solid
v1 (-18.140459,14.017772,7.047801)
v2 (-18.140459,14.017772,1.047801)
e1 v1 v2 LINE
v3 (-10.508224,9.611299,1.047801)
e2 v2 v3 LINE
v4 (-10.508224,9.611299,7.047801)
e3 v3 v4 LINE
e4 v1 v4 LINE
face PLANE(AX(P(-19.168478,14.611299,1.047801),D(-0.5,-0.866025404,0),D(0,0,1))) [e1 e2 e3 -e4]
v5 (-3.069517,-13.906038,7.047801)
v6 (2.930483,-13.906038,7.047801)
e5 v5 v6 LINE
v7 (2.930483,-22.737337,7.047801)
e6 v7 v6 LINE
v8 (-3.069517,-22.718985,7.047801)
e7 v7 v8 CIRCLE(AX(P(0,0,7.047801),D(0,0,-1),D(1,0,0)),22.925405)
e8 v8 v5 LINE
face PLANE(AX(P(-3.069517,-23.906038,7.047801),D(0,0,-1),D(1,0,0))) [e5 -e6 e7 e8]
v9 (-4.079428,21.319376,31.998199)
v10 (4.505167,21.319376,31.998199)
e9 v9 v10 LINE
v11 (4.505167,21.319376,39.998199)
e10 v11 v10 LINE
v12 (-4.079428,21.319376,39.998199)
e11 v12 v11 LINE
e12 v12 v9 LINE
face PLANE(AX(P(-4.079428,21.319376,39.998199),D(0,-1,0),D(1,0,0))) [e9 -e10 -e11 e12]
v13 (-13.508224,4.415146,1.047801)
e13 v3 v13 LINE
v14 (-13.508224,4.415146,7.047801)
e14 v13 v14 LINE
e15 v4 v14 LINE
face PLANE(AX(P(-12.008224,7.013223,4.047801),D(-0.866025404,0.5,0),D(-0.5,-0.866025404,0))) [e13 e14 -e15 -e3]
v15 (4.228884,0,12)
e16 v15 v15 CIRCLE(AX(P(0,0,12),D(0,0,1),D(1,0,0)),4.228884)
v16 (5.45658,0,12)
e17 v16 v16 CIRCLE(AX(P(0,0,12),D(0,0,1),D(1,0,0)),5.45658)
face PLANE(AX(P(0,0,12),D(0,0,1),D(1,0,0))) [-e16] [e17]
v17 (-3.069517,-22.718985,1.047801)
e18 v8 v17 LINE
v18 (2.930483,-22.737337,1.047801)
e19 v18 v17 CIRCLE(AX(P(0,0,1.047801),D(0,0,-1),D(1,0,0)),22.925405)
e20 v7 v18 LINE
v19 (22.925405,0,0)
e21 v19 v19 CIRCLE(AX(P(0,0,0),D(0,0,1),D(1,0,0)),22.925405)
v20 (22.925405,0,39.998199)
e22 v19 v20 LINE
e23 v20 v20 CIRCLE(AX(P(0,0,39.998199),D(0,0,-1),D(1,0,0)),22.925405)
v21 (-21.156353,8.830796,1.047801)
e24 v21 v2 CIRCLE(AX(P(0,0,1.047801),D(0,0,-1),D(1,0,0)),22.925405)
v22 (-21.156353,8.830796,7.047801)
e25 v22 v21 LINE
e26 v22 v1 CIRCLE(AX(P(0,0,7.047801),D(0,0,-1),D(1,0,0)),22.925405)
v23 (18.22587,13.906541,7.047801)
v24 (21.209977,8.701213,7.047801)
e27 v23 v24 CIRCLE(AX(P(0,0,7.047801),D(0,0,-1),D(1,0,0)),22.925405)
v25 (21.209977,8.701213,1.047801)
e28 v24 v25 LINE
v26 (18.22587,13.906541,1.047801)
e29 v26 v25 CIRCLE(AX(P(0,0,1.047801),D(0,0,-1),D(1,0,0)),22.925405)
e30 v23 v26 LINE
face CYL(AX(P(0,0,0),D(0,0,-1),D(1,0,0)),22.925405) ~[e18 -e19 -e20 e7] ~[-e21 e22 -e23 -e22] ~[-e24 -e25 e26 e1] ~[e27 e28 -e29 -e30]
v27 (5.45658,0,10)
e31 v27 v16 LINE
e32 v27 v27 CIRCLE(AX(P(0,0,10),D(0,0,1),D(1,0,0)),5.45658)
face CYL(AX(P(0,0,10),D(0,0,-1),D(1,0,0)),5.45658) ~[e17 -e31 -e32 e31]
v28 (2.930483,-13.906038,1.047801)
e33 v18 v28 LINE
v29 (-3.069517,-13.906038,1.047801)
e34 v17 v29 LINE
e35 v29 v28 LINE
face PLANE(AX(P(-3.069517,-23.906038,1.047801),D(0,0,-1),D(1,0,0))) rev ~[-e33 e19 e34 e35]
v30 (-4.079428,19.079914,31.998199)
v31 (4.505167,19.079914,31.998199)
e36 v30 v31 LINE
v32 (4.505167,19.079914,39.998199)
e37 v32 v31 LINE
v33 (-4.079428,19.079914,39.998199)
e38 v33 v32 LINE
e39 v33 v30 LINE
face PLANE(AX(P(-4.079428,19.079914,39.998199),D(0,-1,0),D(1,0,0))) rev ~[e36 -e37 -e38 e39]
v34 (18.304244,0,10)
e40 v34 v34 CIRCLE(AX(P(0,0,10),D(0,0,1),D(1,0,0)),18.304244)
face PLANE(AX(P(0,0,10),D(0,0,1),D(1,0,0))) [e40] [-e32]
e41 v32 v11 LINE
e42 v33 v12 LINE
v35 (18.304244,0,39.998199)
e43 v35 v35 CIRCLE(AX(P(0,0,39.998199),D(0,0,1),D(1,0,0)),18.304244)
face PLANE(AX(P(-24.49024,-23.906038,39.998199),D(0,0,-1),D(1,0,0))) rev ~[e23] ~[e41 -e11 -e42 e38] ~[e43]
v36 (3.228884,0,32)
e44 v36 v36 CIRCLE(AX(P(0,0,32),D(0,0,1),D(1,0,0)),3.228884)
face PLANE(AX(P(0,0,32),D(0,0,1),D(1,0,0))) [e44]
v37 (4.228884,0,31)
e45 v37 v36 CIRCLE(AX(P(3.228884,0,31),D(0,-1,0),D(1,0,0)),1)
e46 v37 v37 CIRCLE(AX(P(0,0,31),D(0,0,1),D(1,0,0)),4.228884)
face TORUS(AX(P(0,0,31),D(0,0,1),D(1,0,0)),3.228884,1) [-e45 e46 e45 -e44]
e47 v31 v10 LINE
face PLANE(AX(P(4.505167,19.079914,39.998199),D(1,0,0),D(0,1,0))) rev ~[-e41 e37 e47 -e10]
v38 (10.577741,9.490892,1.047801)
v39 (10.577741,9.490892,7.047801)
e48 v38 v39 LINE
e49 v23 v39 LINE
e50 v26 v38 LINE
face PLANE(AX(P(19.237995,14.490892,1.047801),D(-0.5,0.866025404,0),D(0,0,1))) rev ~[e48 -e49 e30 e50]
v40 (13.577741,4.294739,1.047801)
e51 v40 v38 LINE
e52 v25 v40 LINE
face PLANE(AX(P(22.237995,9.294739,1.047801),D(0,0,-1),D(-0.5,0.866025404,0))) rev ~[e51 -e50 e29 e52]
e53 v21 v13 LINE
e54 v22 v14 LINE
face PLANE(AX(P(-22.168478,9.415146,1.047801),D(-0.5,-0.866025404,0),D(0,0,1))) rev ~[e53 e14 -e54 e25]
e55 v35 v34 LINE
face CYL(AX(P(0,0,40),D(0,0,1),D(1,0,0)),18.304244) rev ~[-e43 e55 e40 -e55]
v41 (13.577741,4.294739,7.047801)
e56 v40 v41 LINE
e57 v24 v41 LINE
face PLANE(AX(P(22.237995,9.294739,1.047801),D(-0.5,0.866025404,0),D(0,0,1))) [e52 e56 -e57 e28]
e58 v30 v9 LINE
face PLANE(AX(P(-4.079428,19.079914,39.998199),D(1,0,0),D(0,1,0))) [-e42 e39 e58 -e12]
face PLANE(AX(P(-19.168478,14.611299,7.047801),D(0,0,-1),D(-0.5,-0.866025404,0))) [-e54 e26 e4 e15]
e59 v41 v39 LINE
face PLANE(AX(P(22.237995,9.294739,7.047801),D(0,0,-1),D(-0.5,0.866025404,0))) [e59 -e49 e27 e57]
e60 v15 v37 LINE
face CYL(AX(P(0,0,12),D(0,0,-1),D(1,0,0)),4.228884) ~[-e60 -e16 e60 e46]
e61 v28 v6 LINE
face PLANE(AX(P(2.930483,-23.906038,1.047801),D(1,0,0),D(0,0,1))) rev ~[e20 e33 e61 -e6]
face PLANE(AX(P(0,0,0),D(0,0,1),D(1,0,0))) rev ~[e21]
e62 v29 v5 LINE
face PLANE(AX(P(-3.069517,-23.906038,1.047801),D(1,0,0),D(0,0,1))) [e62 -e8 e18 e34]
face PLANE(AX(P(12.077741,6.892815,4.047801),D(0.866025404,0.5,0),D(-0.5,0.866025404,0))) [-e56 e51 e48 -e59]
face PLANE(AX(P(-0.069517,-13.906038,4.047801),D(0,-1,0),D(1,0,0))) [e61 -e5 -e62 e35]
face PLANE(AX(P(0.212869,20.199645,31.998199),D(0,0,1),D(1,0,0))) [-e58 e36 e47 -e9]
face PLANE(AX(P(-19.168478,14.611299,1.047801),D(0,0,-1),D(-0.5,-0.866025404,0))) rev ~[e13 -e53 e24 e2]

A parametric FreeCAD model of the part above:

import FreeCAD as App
import Part
import Sketcher
Q = App.Units.Quantity


def edges_at(feature, points):
    """Names of the edges that pass closest to the given points."""
    edges = feature.Shape.Edges
    near = lambda p: min(range(len(edges)), key=lambda i: edges[i].distToShape(Part.Vertex(*p))[0])
    return sorted({f"Edge{near(p) + 1}" for p in points})


def add_polygon(sketch, points):
    """Adds a closed chain of lines whose ends are joined by coincident constraints."""
    first, n = sketch.GeometryCount, len(points)
    for a, b in zip(points, points[1:] + points[:1]):
        sketch.addGeometry(Part.LineSegment(App.Vector(*a, 0), App.Vector(*b, 0)), False)
    for i in range(n):
        sketch.addConstraint(Sketcher.Constraint("Coincident", first + i, 2, first + (i + 1) % n, 1))

doc = App.newDocument("Part")
body = doc.addObject("PartDesign::Body", "Body")

sketch1 = doc.addObject("Sketcher::SketchObject", "Sketch")
body.addObject(sketch1)
sketch1.AttachmentSupport = (doc.XY_Plane, [""])
sketch1.MapMode = "FlatFace"
sketch1.addGeometry(Part.Circle(App.Vector(0, 0, 0), App.Vector(0, 0, 1), 23), False)
sketch1.addConstraint([
    Sketcher.Constraint("Coincident", 0, 3, -1, 1),
    Sketcher.Constraint("Diameter", 0, Q("45.850811 mm")),
])
pad1 = doc.addObject("PartDesign::Pad", "Pad")
body.addObject(pad1)
pad1.Profile = sketch1
pad1.Length = 40

sketch2 = doc.addObject("Sketcher::SketchObject", "Sketch001")
body.addObject(sketch2)
sketch2.AttachmentSupport = (doc.XY_Plane, [""])
sketch2.MapMode = "FlatFace"
sketch2.AttachmentOffset = App.Placement(App.Vector(0, 0, 40), App.Rotation())
sketch2.addGeometry(Part.Circle(App.Vector(0, 0, 0), App.Vector(0, 0, 1), 18), False)
sketch2.addConstraint([
    Sketcher.Constraint("Coincident", 0, 3, -1, 1),
    Sketcher.Constraint("Diameter", 0, Q("36.608488 mm")),
])
pocket1 = doc.addObject("PartDesign::Pocket", "Pocket")
body.addObject(pocket1)
pocket1.Profile = sketch2
pocket1.Length = 30

sketch3 = doc.addObject("Sketcher::SketchObject", "Sketch002")
body.addObject(sketch3)
sketch3.AttachmentSupport = (doc.XY_Plane, [""])
sketch3.MapMode = "FlatFace"
sketch3.AttachmentOffset = App.Placement(App.Vector(0, 0, 10), App.Rotation())
sketch3.addGeometry(Part.Circle(App.Vector(0, 0, 0), App.Vector(0, 0, 1), 5), False)
sketch3.addConstraint([
    Sketcher.Constraint("Coincident", 0, 3, -1, 1),
    Sketcher.Constraint("Diameter", 0, Q("10.91316 mm")),
])
pad2 = doc.addObject("PartDesign::Pad", "Pad001")
body.addObject(pad2)
pad2.Profile = sketch3
pad2.Length = 2

sketch4 = doc.addObject("Sketcher::SketchObject", "Sketch003")
body.addObject(sketch4)
sketch4.AttachmentSupport = (doc.XY_Plane, [""])
sketch4.MapMode = "FlatFace"
sketch4.AttachmentOffset = App.Placement(App.Vector(0, 0, 12), App.Rotation())
sketch4.addGeometry(Part.Circle(App.Vector(0, 0, 0), App.Vector(0, 0, 1), 4.2), False)
sketch4.addConstraint([
    Sketcher.Constraint("Coincident", 0, 3, -1, 1),
    Sketcher.Constraint("Diameter", 0, Q("8.457768 mm")),
])
pad3 = doc.addObject("PartDesign::Pad", "Pad002")
body.addObject(pad3)
pad3.Profile = sketch4
pad3.Length = 20
doc.recompute()

fillet = doc.addObject("PartDesign::Fillet", "Fillet")
body.addObject(fillet)
fillet.Base = (pad3, edges_at(pad3, [(-4.229, 0, 32)]))
fillet.Radius = 1

sketch5 = doc.addObject("Sketcher::SketchObject", "Sketch004")
body.addObject(sketch5)
sketch5.AttachmentSupport = (doc.XY_Plane, [""])
sketch5.MapMode = "FlatFace"
sketch5.AttachmentOffset = App.Placement(App.Vector(0, 0, 40), App.Rotation())
add_polygon(sketch5, [(-23, 24), (-23, -24), (24, -24), (24, 24)])
sketch5.addConstraint([
    Sketcher.Constraint("Vertical", 0),
    Sketcher.Constraint("Horizontal", 1),
    Sketcher.Constraint("Vertical", 2),
    Sketcher.Constraint("Horizontal", 3),
    Sketcher.Constraint("DistanceX", 1, 1, 1, 2, Q("47.033489 mm")),
    Sketcher.Constraint("DistanceY", 0, 2, 0, 1, Q("47.446069 mm")),
    Sketcher.Constraint("DistanceX", 0, 2, -1, 1, Q("23.37134 mm")),
    Sketcher.Constraint("DistanceY", -1, 1, 2, 2, Q("23.540031 mm")),
])
pad4 = doc.addObject("PartDesign::Pad", "Pad003")
body.addObject(pad4)
pad4.Profile = sketch5
pad4.Length = 10

sketch6 = doc.addObject("Sketcher::SketchObject", "Sketch005")
body.addObject(sketch6)
sketch6.AttachmentSupport = (doc.XZ_Plane, [""])
sketch6.MapMode = "FlatFace"
sketch6.AttachmentOffset = App.Placement(App.Vector(0, 0, 23.906038), App.Rotation())
add_polygon(sketch6, [(-3, 7), (-3, 1), (3, 1), (3, 7)])
sketch6.addConstraint([
    Sketcher.Constraint("Vertical", 0),
    Sketcher.Constraint("Horizontal", 1),
    Sketcher.Constraint("Vertical", 2),
    Sketcher.Constraint("Horizontal", 3),
    Sketcher.Constraint("Equal", 3, 0),
    Sketcher.Constraint("DistanceX", 1, 1, 1, 2, Q("6 mm")),
    Sketcher.Constraint("DistanceY", -1, 1, 0, 2, Q("1.047801 mm")),
    Sketcher.Constraint("DistanceX", 0, 2, -1, 1, Q("3.069517 mm")),
])
pocket2 = doc.addObject("PartDesign::Pocket", "Pocket001")
body.addObject(pocket2)
pocket2.Profile = sketch6
pocket2.Length = 10
doc.recompute()

polarpattern = doc.addObject("PartDesign::PolarPattern", "PolarPattern")
body.addObject(polarpattern)
polarpattern.Originals = [pocket2]
polarpattern.Axis = (doc.Z_Axis, [""])
polarpattern.Angle = 360
polarpattern.Occurrences = 3
body.Tip = polarpattern

sketch7 = doc.addObject("Sketcher::SketchObject", "Sketch006")
body.addObject(sketch7)
sketch7.AttachmentSupport = (doc.XZ_Plane, [""])
sketch7.MapMode = "FlatFace"
sketch7.AttachmentOffset = App.Placement(App.Vector(0, 0, 23.906038), App.Rotation())
add_polygon(sketch7, [(-24, 51), (-24, 40), (24, 40), (24, 51)])
sketch7.addConstraint([
    Sketcher.Constraint("Vertical", 0),
    Sketcher.Constraint("Horizontal", 1),
    Sketcher.Constraint("Vertical", 2),
    Sketcher.Constraint("Horizontal", 3),
    Sketcher.Constraint("DistanceX", 1, 1, 1, 2, Q("48.955269 mm")),
    Sketcher.Constraint("DistanceY", -1, 1, 0, 2, Q("39.998199 mm")),
    Sketcher.Constraint("DistanceY", 0, 2, 0, 1, Q("10.757687 mm")),
    Sketcher.Constraint("DistanceX", 0, 2, -1, 1, Q("24.49024 mm")),
])
pocket3 = doc.addObject("PartDesign::Pocket", "Pocket002")
body.addObject(pocket3)
pocket3.Profile = sketch7
pocket3.Type = "ThroughAll"

sketch8 = doc.addObject("Sketcher::SketchObject", "Sketch007")
body.addObject(sketch8)
sketch8.AttachmentSupport = (doc.XY_Plane, [""])
sketch8.MapMode = "FlatFace"
sketch8.AttachmentOffset = App.Placement(App.Vector(0, 0, 39.998199), App.Rotation())
add_polygon(sketch8, [(-4.1, 21.3), (-4.1, 19.1), (4.5, 19.1), (4.5, 21.3)])
sketch8.addConstraint([
    Sketcher.Constraint("Vertical", 0),
    Sketcher.Constraint("Horizontal", 1),
    Sketcher.Constraint("Vertical", 2),
    Sketcher.Constraint("Horizontal", 3),
    Sketcher.Constraint("DistanceY", 0, 2, 0, 1, Q("2.239462 mm")),
    Sketcher.Constraint("DistanceX", 1, 1, 1, 2, Q("8.584595 mm")),
    Sketcher.Constraint("DistanceX", 0, 2, -1, 1, Q("4.079428 mm")),
    Sketcher.Constraint("DistanceY", -1, 1, 0, 2, Q("19.079914 mm")),
])
pocket4 = doc.addObject("PartDesign::Pocket", "Pocket003")
body.addObject(pocket4)
pocket4.Profile = sketch8
pocket4.Length = 8

doc.recompute()
